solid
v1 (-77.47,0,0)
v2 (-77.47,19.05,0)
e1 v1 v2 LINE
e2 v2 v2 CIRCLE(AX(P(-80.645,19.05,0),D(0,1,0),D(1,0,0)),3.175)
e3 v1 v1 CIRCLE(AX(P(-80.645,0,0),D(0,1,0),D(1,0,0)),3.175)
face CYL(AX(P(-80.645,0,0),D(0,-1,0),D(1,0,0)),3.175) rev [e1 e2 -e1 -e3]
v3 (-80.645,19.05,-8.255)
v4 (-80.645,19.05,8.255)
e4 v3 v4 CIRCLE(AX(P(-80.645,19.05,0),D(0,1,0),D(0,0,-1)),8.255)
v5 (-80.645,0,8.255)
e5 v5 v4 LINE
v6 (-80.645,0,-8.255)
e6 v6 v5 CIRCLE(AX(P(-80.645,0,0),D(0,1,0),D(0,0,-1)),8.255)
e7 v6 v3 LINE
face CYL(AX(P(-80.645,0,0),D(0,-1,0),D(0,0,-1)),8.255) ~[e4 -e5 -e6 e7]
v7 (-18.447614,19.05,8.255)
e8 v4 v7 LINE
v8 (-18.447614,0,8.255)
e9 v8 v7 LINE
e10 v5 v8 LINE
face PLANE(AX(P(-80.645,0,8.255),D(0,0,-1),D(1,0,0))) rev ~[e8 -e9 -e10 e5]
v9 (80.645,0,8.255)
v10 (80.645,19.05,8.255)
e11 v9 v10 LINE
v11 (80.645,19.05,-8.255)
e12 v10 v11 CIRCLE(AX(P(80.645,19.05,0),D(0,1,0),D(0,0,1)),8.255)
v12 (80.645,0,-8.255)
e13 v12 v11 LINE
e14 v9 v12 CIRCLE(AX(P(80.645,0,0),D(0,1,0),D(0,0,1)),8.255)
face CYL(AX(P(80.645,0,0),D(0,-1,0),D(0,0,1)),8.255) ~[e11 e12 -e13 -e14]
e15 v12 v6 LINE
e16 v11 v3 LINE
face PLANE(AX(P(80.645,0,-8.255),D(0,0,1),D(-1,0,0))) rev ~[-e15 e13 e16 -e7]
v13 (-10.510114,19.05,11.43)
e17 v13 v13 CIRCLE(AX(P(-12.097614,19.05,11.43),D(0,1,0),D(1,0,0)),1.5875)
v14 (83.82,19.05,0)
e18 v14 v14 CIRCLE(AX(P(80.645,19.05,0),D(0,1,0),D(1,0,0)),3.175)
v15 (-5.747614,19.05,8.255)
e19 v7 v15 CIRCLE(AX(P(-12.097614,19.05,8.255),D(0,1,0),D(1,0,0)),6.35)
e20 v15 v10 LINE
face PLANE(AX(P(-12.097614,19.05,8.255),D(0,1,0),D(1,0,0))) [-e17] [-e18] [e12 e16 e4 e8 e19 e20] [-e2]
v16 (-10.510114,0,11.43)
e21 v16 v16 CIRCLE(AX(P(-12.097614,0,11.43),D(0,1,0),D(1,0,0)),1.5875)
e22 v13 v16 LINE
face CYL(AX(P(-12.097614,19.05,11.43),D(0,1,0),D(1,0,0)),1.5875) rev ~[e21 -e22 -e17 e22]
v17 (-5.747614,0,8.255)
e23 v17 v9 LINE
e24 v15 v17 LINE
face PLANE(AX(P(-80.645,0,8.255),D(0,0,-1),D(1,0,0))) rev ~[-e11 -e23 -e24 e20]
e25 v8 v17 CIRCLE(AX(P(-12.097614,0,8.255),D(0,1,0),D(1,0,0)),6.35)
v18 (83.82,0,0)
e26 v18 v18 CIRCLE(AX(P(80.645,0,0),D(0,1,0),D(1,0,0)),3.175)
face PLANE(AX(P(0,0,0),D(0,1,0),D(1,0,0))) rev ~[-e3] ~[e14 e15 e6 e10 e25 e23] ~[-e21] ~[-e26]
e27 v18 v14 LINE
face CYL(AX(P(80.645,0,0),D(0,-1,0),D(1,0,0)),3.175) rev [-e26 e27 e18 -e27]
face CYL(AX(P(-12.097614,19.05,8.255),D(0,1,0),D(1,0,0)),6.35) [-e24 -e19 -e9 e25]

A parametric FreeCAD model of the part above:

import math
import FreeCAD as App
import Part
import Sketcher
Q = App.Units.Quantity

doc = App.newDocument("Part")
body = doc.addObject("PartDesign::Body", "Body")

# Sketch on XZ plane
sketch1 = body.newObject("Sketcher::SketchObject", "Sketch")
sketch1.AttachmentSupport = (doc.getObject("XZ_Plane"), [""])
sketch1.MapMode = "FlatFace"
sketch1.addGeometry([
    Part.LineSegment(App.Vector(-80.6, 8.3, 0), App.Vector(80.6, 8.3, 0)),  # 0
    Part.ArcOfCircle(Part.Circle(App.Vector(80.6, 0, 0), App.Vector(0, 0, 1), 8.3), math.radians(-90), math.radians(90)),  # 1
    Part.LineSegment(App.Vector(80.6, -8.3, 0), App.Vector(-80.6, -8.3, 0)),  # 2
    Part.ArcOfCircle(Part.Circle(App.Vector(-80.6, 0, 0), App.Vector(0, 0, 1), 8.3), math.radians(90), math.radians(270)),  # 3
    Part.Circle(App.Vector(-80.6, 0, 0), App.Vector(0, 0, 1), 3.2),  # 4
    Part.Circle(App.Vector(80.6, 0, 0), App.Vector(0, 0, 1), 3.2),  # 5
], False)
sketch1.addConstraint([
    Sketcher.Constraint("Tangent", 0, 2, 1, 2),
    Sketcher.Constraint("Tangent", 1, 1, 2, 1),
    Sketcher.Constraint("Tangent", 2, 2, 3, 2),
    Sketcher.Constraint("Tangent", 3, 1, 0, 1),
    Sketcher.Constraint("Horizontal", 0),
    Sketcher.Constraint("Horizontal", 2),
    Sketcher.Constraint("Coincident", 4, 3, 3, 3),
    Sketcher.Constraint("Coincident", 5, 3, 1, 3),
    Sketcher.Constraint("Equal", 4, 5),
    Sketcher.Constraint("Symmetric", 1, 3, 3, 3, -1, 1),
    Sketcher.Constraint("Diameter", 4, Q("0.25 in")),
    Sketcher.Constraint("Radius", 1, Q("0.325 in")),
    Sketcher.Constraint("DistanceX", 0, 1, 0, 2, Q("6.35 in")),
])
pad1 = body.newObject("PartDesign::Pad", "Pad")
pad1.Profile = sketch1
pad1.Length = Q("0.75 in")
pad1.Reversed = True

# Sketch on XZ plane
sketch2 = body.newObject("Sketcher::SketchObject", "Sketch001")
sketch2.AttachmentSupport = (doc.getObject("XZ_Plane"), [""])
sketch2.MapMode = "FlatFace"
sketch2.AttachmentOffset = App.Placement(App.Vector(0, 0, -0.75 * 25.4), App.Rotation())
sketch2.addGeometry([
    Part.Circle(App.Vector(-12.1, 8.3, 0), App.Vector(0, 0, 1), 6.3),
    Part.Circle(App.Vector(-12.1, 11.4, 0), App.Vector(0, 0, 1), 1.6),
], False)
sketch2.addConstraint([
    Sketcher.Constraint("Vertical", 0, 3, 1, 3),
    Sketcher.Constraint("Diameter", 0, Q("0.5 in")),
    Sketcher.Constraint("Diameter", 1, Q("0.125 in")),
    Sketcher.Constraint("DistanceY", -1, 1, 1, 3, Q("0.45 in")),
    Sketcher.Constraint("DistanceY", -1, 1, 0, 3, Q("0.325 in")),
    Sketcher.Constraint("DistanceX", 0, 3, -1, 1, 12.097614),
])
pad2 = body.newObject("PartDesign::Pad", "Pad001")
pad2.Profile = sketch2
pad2.Length = Q("0.75 in")

doc.recompute()
